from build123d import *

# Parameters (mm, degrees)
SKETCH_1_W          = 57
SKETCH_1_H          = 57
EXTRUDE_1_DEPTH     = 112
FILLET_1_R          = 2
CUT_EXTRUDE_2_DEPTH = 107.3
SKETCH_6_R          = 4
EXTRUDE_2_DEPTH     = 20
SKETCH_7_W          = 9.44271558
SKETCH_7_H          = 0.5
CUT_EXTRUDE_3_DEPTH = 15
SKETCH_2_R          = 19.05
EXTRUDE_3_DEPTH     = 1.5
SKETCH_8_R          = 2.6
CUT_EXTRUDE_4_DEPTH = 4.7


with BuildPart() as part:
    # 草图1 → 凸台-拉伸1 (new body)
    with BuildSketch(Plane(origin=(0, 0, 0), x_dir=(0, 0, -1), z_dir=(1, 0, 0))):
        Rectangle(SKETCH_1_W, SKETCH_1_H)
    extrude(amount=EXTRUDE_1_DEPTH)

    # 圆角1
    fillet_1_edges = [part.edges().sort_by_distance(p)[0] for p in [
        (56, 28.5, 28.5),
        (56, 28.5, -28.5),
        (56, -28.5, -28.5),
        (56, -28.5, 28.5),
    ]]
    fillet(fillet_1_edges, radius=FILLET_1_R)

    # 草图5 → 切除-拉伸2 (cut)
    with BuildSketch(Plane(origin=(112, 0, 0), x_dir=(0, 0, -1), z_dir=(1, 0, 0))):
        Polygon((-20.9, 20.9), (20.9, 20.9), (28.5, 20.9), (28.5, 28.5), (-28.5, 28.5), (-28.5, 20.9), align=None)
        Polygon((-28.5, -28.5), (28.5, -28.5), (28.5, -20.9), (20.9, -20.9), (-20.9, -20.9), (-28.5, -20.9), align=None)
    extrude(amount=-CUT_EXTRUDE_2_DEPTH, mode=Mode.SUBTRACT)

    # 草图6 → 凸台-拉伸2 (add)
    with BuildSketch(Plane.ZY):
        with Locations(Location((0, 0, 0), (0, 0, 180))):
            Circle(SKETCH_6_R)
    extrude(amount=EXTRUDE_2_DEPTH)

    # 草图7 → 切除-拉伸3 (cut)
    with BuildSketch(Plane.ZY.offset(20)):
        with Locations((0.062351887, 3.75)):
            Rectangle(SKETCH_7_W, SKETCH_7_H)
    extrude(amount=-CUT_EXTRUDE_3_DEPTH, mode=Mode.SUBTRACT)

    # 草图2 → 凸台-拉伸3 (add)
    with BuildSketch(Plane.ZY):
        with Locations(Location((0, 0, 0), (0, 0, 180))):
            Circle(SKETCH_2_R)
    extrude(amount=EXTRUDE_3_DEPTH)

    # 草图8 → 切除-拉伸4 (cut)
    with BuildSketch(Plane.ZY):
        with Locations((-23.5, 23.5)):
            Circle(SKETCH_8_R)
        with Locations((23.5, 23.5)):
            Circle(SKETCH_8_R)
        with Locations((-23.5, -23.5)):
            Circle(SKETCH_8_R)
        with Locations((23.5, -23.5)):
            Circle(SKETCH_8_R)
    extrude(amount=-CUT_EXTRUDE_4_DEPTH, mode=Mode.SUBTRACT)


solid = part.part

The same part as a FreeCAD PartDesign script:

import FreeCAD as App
import Part
import Sketcher
Q = App.Units.Quantity


def edges_at(feature, points):
    """Names of the edges that pass closest to the given points."""
    edges = feature.Shape.Edges
    near = lambda p: min(range(len(edges)), key=lambda i: edges[i].distToShape(Part.Vertex(*p))[0])
    return sorted({f"Edge{near(p) + 1}" for p in points})


def add_polygon(sketch, points):
    """Adds a closed chain of lines whose ends are joined by coincident constraints."""
    first, n = sketch.GeometryCount, len(points)
    for a, b in zip(points, points[1:] + points[:1]):
        sketch.addGeometry(Part.LineSegment(App.Vector(*a, 0), App.Vector(*b, 0)), False)
    for i in range(n):
        sketch.addConstraint(Sketcher.Constraint("Coincident", first + i, 2, first + (i + 1) % n, 1))

doc = App.newDocument("Part")
body = doc.addObject("PartDesign::Body", "Body")

# Sketch on YZ plane
sketch1 = body.newObject("Sketcher::SketchObject", "Sketch")
sketch1.AttachmentSupport = (doc.getObject("YZ_Plane"), [""])
sketch1.MapMode = "FlatFace"
add_polygon(sketch1, [(28, 28), (-28, 28), (-28, -28), (28, -28)])  # lines 0-3
sketch1.addConstraint([
    Sketcher.Constraint("Horizontal", 0),
    Sketcher.Constraint("Vertical", 1),
    Sketcher.Constraint("Horizontal", 2),
    Sketcher.Constraint("Vertical", 3),
    Sketcher.Constraint("Symmetric", 0, 2, 2, 2, -1, 1),
    Sketcher.Constraint("Equal", 2, 1),
    Sketcher.Constraint("DistanceX", 0, 2, 0, 1, Q("57 mm")),
])
pad1 = body.newObject("PartDesign::Pad", "Pad")
pad1.Profile = sketch1
pad1.Length = 112
doc.recompute()

fillet = body.newObject("PartDesign::Fillet", "Fillet")
fillet.Base = (pad1, edges_at(pad1, [
    (56, 28.5, 28.5),
    (56, 28.5, -28.5),
    (56, -28.5, -28.5),
    (56, -28.5, 28.5),
]))
fillet.Radius = 2

# Sketch on YZ plane
sketch2 = body.newObject("Sketcher::SketchObject", "Sketch001")
sketch2.AttachmentSupport = (doc.getObject("YZ_Plane"), [""])
sketch2.MapMode = "FlatFace"
sketch2.AttachmentOffset = App.Placement(App.Vector(0, 0, 112), App.Rotation())
add_polygon(sketch2, [(21, -28), (28, -28), (28, 28), (21, 28)])  # lines 0-3
add_polygon(sketch2, [(-28, 28), (-28, -28), (-21, -28), (-21, 28)])  # lines 4-7
sketch2.addConstraint([
    Sketcher.Constraint("Horizontal", 0),
    Sketcher.Constraint("Vertical", 1),
    Sketcher.Constraint("Horizontal", 2),
    Sketcher.Constraint("Vertical", 3),
    Sketcher.Constraint("Vertical", 4),
    Sketcher.Constraint("Horizontal", 5),
    Sketcher.Constraint("Vertical", 6),
    Sketcher.Constraint("Horizontal", 7),
    Sketcher.Constraint("Symmetric", 1, 2, 4, 2, -1, 1),
    Sketcher.Constraint("Symmetric", 3, 2, 6, 2, -1, 1),
    Sketcher.Constraint("Horizontal", 3, 2, 4, 2),
    Sketcher.Constraint("DistanceY", 1, 1, 1, 2, Q("57 mm")),
    Sketcher.Constraint("DistanceX", 0, 1, 0, 2, Q("7.6 mm")),
    Sketcher.Constraint("DistanceX", 4, 2, 0, 2, Q("57 mm")),
])
pocket1 = body.newObject("PartDesign::Pocket", "Pocket")
pocket1.Profile = sketch2
pocket1.Length = 107.3

# Sketch on YZ plane
sketch3 = body.newObject("Sketcher::SketchObject", "Sketch002")
sketch3.AttachmentSupport = (doc.getObject("YZ_Plane"), [""])
sketch3.MapMode = "FlatFace"
sketch3.addGeometry(Part.Circle(App.Vector(0, 0, 0), App.Vector(0, 0, 1), 4), False)
sketch3.addConstraint([
    Sketcher.Constraint("Coincident", 0, 3, -1, 1),
    Sketcher.Constraint("Diameter", 0, Q("8 mm")),
])
pad2 = body.newObject("PartDesign::Pad", "Pad001")
pad2.Profile = sketch3
pad2.Length = 20
pad2.Reversed = True

# Sketch on YZ plane
sketch4 = body.newObject("Sketcher::SketchObject", "Sketch003")
sketch4.AttachmentSupport = (doc.getObject("YZ_Plane"), [""])
sketch4.MapMode = "FlatFace"
sketch4.AttachmentOffset = App.Placement(App.Vector(0, 0, -20), App.Rotation())
add_polygon(sketch4, [(4, -4.7), (3.5, -4.7), (3.5, 4.8), (4, 4.8)])  # lines 0-3
sketch4.addConstraint([
    Sketcher.Constraint("Horizontal", 0),
    Sketcher.Constraint("Vertical", 1),
    Sketcher.Constraint("Horizontal", 2),
    Sketcher.Constraint("Vertical", 3),
    Sketcher.Constraint("DistanceX", 0, 2, 0, 1, Q("0.5 mm")),
    Sketcher.Constraint("DistanceX", -1, 1, 2, 2, Q("4 mm")),
    Sketcher.Constraint("DistanceY", 1, 1, 1, 2, Q("9.442716 mm")),
    Sketcher.Constraint("DistanceY", -1, 1, 1, 2, Q("4.78371 mm")),
])
pocket2 = body.newObject("PartDesign::Pocket", "Pocket001")
pocket2.Profile = sketch4
pocket2.Length = 15
pocket2.Reversed = True

# Sketch on YZ plane
sketch5 = body.newObject("Sketcher::SketchObject", "Sketch004")
sketch5.AttachmentSupport = (doc.getObject("YZ_Plane"), [""])
sketch5.MapMode = "FlatFace"
sketch5.addGeometry(Part.Circle(App.Vector(0, 0, 0), App.Vector(0, 0, 1), 19), False)
sketch5.addConstraint([
    Sketcher.Constraint("Coincident", 0, 3, -1, 1),
    Sketcher.Constraint("Diameter", 0, Q("38.1 mm")),
])
pad3 = body.newObject("PartDesign::Pad", "Pad002")
pad3.Profile = sketch5
pad3.Length = 1.5
pad3.Reversed = True

# Sketch on YZ plane
sketch6 = body.newObject("Sketcher::SketchObject", "Sketch005")
sketch6.AttachmentSupport = (doc.getObject("YZ_Plane"), [""])
sketch6.MapMode = "FlatFace"
sketch6.addGeometry([
    Part.Circle(App.Vector(23.5, -23.5, 0), App.Vector(0, 0, 1), 2.6),
    Part.Circle(App.Vector(23.5, 23.5, 0), App.Vector(0, 0, 1), 2.6),
    Part.Circle(App.Vector(-23.5, -23.5, 0), App.Vector(0, 0, 1), 2.6),
    Part.Circle(App.Vector(-23.5, 23.5, 0), App.Vector(0, 0, 1), 2.6),
], False)
sketch6.addConstraint([
    Sketcher.Constraint("Equal", 0, 1),
    Sketcher.Constraint("Equal", 1, 2),
    Sketcher.Constraint("Equal", 2, 3),
    Sketcher.Constraint("Symmetric", 1, 3, 2, 3, -1, 1),
    Sketcher.Constraint("Symmetric", 0, 3, 3, 3, -1, 1),
    Sketcher.Constraint("Symmetric", 0, 3, 2, 3, -2),
    Sketcher.Constraint("Diameter", 0, Q("5.2 mm")),
    Sketcher.Constraint("DistanceY", 0, 3, 1, 3, Q("47 mm")),
    Sketcher.Constraint("DistanceX", 2, 3, 0, 3, Q("47 mm")),
])
pocket3 = body.newObject("PartDesign::Pocket", "Pocket002")
pocket3.Profile = sketch6
pocket3.Length = 4.7
pocket3.Reversed = True

doc.recompute()
